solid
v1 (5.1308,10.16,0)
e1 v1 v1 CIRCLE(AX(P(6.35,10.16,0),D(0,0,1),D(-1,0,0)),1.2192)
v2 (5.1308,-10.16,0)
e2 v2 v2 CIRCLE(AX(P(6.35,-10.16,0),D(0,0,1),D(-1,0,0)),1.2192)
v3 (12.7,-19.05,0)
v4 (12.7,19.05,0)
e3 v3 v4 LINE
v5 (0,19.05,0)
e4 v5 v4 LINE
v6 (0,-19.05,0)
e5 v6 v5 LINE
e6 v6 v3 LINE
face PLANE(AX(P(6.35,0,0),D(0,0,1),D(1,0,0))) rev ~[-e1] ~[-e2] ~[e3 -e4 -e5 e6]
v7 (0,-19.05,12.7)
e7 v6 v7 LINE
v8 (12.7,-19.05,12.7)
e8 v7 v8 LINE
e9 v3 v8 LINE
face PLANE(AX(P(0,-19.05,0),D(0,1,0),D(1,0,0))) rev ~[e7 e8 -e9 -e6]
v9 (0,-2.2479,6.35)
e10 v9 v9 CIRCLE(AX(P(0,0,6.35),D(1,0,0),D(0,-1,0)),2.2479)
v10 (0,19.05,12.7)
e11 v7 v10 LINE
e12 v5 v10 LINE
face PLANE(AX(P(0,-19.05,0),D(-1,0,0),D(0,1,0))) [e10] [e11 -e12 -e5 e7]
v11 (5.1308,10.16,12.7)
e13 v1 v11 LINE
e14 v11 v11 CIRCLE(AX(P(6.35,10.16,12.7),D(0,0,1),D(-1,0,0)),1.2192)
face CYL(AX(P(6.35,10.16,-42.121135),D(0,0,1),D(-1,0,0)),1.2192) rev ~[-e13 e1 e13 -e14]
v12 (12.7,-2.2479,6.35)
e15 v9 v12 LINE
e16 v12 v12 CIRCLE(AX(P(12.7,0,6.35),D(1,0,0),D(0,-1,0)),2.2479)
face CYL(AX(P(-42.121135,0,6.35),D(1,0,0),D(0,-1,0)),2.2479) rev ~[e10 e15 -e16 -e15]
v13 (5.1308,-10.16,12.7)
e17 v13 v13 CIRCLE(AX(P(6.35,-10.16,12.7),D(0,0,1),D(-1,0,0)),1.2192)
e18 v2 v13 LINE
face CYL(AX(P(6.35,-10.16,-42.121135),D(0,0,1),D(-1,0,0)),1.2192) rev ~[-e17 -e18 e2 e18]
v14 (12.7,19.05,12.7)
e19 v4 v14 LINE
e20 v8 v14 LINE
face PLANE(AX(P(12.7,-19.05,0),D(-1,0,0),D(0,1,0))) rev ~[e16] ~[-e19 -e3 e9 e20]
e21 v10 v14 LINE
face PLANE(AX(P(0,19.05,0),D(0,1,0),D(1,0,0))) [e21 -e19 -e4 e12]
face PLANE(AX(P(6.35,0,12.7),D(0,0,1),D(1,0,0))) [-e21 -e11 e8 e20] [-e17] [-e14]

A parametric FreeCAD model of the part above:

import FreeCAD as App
import Part
import Sketcher
Q = App.Units.Quantity


def add_polygon(sketch, points):
    """Adds a closed chain of lines whose ends are joined by coincident constraints."""
    first, n = sketch.GeometryCount, len(points)
    for a, b in zip(points, points[1:] + points[:1]):
        sketch.addGeometry(Part.LineSegment(App.Vector(*a, 0), App.Vector(*b, 0)), False)
    for i in range(n):
        sketch.addConstraint(Sketcher.Constraint("Coincident", first + i, 2, first + (i + 1) % n, 1))

doc = App.newDocument("Part")
body = doc.addObject("PartDesign::Body", "Body")

sketch1 = body.newObject("Sketcher::SketchObject", "Sketch")
sketch1.AttachmentSupport = (doc.getObject("XY_Plane"), [""])
sketch1.MapMode = "FlatFace"
add_polygon(sketch1, [(0, 19.05), (0, -19.05), (12.7, -19.05), (12.7, 19.05)])
sketch1.addConstraint([
    Sketcher.Constraint("Vertical", 0),
    Sketcher.Constraint("Horizontal", 1),
    Sketcher.Constraint("Vertical", 2),
    Sketcher.Constraint("Horizontal", 3),
    Sketcher.Constraint("Symmetric", 0, 2, 3, 2, -1, 1),
    Sketcher.Constraint("DistanceX", 1, 1, 1, 2, Q("0.5 in")),
    Sketcher.Constraint("DistanceY", 0, 2, 0, 1, Q("1.5 in")),
])
pad1 = body.newObject("PartDesign::Pad", "Pad")
pad1.Profile = sketch1
pad1.Length = Q("0.5 in")

sketch2 = body.newObject("Sketcher::SketchObject", "Sketch001")
sketch2.AttachmentSupport = (doc.getObject("YZ_Plane"), [""])
sketch2.MapMode = "FlatFace"
sketch2.addGeometry(Part.Circle(App.Vector(0, 6.35, 0), App.Vector(0, 0, 1), 2.2479), False)
sketch2.addConstraint([
    Sketcher.Constraint("PointOnObject", 0, 3, -2),
    Sketcher.Constraint("Diameter", 0, Q("0.177 in")),
    Sketcher.Constraint("DistanceY", -1, 1, 0, 3, Q("0.25 in")),
])
doc.recompute()
hole = body.newObject("PartDesign::Hole", "Hole")
hole.Profile = sketch2
hole.ThreadType = "None"
hole.Diameter = Q("0.177 in")
hole.DepthType = "ThroughAll"
hole.Reversed = True

sketch3 = body.newObject("Sketcher::SketchObject", "Sketch002")
sketch3.AttachmentSupport = (doc.getObject("XY_Plane"), [""])
sketch3.MapMode = "FlatFace"
sketch3.addGeometry([
    Part.Circle(App.Vector(6.35, 10.16, 0), App.Vector(0, 0, 1), 1.2192),
    Part.Circle(App.Vector(6.35, -10.16, 0), App.Vector(0, 0, 1), 1.2192),
], False)
sketch3.addConstraint([
    Sketcher.Constraint("Equal", 0, 1),
    Sketcher.Constraint("Symmetric", 0, 3, 1, 3, -1),
    Sketcher.Constraint("Diameter", 0, Q("0.096 in")),
    Sketcher.Constraint("DistanceY", -1, 1, 0, 3, Q("0.4 in")),
    Sketcher.Constraint("DistanceX", -1, 1, 0, 3, Q("0.25 in")),
])
doc.recompute()
hole2 = body.newObject("PartDesign::Hole", "Hole001")
hole2.Profile = sketch3
hole2.ThreadType = "None"
hole2.Diameter = Q("0.096 in")
hole2.DepthType = "ThroughAll"
hole2.Reversed = True

doc.recompute()
